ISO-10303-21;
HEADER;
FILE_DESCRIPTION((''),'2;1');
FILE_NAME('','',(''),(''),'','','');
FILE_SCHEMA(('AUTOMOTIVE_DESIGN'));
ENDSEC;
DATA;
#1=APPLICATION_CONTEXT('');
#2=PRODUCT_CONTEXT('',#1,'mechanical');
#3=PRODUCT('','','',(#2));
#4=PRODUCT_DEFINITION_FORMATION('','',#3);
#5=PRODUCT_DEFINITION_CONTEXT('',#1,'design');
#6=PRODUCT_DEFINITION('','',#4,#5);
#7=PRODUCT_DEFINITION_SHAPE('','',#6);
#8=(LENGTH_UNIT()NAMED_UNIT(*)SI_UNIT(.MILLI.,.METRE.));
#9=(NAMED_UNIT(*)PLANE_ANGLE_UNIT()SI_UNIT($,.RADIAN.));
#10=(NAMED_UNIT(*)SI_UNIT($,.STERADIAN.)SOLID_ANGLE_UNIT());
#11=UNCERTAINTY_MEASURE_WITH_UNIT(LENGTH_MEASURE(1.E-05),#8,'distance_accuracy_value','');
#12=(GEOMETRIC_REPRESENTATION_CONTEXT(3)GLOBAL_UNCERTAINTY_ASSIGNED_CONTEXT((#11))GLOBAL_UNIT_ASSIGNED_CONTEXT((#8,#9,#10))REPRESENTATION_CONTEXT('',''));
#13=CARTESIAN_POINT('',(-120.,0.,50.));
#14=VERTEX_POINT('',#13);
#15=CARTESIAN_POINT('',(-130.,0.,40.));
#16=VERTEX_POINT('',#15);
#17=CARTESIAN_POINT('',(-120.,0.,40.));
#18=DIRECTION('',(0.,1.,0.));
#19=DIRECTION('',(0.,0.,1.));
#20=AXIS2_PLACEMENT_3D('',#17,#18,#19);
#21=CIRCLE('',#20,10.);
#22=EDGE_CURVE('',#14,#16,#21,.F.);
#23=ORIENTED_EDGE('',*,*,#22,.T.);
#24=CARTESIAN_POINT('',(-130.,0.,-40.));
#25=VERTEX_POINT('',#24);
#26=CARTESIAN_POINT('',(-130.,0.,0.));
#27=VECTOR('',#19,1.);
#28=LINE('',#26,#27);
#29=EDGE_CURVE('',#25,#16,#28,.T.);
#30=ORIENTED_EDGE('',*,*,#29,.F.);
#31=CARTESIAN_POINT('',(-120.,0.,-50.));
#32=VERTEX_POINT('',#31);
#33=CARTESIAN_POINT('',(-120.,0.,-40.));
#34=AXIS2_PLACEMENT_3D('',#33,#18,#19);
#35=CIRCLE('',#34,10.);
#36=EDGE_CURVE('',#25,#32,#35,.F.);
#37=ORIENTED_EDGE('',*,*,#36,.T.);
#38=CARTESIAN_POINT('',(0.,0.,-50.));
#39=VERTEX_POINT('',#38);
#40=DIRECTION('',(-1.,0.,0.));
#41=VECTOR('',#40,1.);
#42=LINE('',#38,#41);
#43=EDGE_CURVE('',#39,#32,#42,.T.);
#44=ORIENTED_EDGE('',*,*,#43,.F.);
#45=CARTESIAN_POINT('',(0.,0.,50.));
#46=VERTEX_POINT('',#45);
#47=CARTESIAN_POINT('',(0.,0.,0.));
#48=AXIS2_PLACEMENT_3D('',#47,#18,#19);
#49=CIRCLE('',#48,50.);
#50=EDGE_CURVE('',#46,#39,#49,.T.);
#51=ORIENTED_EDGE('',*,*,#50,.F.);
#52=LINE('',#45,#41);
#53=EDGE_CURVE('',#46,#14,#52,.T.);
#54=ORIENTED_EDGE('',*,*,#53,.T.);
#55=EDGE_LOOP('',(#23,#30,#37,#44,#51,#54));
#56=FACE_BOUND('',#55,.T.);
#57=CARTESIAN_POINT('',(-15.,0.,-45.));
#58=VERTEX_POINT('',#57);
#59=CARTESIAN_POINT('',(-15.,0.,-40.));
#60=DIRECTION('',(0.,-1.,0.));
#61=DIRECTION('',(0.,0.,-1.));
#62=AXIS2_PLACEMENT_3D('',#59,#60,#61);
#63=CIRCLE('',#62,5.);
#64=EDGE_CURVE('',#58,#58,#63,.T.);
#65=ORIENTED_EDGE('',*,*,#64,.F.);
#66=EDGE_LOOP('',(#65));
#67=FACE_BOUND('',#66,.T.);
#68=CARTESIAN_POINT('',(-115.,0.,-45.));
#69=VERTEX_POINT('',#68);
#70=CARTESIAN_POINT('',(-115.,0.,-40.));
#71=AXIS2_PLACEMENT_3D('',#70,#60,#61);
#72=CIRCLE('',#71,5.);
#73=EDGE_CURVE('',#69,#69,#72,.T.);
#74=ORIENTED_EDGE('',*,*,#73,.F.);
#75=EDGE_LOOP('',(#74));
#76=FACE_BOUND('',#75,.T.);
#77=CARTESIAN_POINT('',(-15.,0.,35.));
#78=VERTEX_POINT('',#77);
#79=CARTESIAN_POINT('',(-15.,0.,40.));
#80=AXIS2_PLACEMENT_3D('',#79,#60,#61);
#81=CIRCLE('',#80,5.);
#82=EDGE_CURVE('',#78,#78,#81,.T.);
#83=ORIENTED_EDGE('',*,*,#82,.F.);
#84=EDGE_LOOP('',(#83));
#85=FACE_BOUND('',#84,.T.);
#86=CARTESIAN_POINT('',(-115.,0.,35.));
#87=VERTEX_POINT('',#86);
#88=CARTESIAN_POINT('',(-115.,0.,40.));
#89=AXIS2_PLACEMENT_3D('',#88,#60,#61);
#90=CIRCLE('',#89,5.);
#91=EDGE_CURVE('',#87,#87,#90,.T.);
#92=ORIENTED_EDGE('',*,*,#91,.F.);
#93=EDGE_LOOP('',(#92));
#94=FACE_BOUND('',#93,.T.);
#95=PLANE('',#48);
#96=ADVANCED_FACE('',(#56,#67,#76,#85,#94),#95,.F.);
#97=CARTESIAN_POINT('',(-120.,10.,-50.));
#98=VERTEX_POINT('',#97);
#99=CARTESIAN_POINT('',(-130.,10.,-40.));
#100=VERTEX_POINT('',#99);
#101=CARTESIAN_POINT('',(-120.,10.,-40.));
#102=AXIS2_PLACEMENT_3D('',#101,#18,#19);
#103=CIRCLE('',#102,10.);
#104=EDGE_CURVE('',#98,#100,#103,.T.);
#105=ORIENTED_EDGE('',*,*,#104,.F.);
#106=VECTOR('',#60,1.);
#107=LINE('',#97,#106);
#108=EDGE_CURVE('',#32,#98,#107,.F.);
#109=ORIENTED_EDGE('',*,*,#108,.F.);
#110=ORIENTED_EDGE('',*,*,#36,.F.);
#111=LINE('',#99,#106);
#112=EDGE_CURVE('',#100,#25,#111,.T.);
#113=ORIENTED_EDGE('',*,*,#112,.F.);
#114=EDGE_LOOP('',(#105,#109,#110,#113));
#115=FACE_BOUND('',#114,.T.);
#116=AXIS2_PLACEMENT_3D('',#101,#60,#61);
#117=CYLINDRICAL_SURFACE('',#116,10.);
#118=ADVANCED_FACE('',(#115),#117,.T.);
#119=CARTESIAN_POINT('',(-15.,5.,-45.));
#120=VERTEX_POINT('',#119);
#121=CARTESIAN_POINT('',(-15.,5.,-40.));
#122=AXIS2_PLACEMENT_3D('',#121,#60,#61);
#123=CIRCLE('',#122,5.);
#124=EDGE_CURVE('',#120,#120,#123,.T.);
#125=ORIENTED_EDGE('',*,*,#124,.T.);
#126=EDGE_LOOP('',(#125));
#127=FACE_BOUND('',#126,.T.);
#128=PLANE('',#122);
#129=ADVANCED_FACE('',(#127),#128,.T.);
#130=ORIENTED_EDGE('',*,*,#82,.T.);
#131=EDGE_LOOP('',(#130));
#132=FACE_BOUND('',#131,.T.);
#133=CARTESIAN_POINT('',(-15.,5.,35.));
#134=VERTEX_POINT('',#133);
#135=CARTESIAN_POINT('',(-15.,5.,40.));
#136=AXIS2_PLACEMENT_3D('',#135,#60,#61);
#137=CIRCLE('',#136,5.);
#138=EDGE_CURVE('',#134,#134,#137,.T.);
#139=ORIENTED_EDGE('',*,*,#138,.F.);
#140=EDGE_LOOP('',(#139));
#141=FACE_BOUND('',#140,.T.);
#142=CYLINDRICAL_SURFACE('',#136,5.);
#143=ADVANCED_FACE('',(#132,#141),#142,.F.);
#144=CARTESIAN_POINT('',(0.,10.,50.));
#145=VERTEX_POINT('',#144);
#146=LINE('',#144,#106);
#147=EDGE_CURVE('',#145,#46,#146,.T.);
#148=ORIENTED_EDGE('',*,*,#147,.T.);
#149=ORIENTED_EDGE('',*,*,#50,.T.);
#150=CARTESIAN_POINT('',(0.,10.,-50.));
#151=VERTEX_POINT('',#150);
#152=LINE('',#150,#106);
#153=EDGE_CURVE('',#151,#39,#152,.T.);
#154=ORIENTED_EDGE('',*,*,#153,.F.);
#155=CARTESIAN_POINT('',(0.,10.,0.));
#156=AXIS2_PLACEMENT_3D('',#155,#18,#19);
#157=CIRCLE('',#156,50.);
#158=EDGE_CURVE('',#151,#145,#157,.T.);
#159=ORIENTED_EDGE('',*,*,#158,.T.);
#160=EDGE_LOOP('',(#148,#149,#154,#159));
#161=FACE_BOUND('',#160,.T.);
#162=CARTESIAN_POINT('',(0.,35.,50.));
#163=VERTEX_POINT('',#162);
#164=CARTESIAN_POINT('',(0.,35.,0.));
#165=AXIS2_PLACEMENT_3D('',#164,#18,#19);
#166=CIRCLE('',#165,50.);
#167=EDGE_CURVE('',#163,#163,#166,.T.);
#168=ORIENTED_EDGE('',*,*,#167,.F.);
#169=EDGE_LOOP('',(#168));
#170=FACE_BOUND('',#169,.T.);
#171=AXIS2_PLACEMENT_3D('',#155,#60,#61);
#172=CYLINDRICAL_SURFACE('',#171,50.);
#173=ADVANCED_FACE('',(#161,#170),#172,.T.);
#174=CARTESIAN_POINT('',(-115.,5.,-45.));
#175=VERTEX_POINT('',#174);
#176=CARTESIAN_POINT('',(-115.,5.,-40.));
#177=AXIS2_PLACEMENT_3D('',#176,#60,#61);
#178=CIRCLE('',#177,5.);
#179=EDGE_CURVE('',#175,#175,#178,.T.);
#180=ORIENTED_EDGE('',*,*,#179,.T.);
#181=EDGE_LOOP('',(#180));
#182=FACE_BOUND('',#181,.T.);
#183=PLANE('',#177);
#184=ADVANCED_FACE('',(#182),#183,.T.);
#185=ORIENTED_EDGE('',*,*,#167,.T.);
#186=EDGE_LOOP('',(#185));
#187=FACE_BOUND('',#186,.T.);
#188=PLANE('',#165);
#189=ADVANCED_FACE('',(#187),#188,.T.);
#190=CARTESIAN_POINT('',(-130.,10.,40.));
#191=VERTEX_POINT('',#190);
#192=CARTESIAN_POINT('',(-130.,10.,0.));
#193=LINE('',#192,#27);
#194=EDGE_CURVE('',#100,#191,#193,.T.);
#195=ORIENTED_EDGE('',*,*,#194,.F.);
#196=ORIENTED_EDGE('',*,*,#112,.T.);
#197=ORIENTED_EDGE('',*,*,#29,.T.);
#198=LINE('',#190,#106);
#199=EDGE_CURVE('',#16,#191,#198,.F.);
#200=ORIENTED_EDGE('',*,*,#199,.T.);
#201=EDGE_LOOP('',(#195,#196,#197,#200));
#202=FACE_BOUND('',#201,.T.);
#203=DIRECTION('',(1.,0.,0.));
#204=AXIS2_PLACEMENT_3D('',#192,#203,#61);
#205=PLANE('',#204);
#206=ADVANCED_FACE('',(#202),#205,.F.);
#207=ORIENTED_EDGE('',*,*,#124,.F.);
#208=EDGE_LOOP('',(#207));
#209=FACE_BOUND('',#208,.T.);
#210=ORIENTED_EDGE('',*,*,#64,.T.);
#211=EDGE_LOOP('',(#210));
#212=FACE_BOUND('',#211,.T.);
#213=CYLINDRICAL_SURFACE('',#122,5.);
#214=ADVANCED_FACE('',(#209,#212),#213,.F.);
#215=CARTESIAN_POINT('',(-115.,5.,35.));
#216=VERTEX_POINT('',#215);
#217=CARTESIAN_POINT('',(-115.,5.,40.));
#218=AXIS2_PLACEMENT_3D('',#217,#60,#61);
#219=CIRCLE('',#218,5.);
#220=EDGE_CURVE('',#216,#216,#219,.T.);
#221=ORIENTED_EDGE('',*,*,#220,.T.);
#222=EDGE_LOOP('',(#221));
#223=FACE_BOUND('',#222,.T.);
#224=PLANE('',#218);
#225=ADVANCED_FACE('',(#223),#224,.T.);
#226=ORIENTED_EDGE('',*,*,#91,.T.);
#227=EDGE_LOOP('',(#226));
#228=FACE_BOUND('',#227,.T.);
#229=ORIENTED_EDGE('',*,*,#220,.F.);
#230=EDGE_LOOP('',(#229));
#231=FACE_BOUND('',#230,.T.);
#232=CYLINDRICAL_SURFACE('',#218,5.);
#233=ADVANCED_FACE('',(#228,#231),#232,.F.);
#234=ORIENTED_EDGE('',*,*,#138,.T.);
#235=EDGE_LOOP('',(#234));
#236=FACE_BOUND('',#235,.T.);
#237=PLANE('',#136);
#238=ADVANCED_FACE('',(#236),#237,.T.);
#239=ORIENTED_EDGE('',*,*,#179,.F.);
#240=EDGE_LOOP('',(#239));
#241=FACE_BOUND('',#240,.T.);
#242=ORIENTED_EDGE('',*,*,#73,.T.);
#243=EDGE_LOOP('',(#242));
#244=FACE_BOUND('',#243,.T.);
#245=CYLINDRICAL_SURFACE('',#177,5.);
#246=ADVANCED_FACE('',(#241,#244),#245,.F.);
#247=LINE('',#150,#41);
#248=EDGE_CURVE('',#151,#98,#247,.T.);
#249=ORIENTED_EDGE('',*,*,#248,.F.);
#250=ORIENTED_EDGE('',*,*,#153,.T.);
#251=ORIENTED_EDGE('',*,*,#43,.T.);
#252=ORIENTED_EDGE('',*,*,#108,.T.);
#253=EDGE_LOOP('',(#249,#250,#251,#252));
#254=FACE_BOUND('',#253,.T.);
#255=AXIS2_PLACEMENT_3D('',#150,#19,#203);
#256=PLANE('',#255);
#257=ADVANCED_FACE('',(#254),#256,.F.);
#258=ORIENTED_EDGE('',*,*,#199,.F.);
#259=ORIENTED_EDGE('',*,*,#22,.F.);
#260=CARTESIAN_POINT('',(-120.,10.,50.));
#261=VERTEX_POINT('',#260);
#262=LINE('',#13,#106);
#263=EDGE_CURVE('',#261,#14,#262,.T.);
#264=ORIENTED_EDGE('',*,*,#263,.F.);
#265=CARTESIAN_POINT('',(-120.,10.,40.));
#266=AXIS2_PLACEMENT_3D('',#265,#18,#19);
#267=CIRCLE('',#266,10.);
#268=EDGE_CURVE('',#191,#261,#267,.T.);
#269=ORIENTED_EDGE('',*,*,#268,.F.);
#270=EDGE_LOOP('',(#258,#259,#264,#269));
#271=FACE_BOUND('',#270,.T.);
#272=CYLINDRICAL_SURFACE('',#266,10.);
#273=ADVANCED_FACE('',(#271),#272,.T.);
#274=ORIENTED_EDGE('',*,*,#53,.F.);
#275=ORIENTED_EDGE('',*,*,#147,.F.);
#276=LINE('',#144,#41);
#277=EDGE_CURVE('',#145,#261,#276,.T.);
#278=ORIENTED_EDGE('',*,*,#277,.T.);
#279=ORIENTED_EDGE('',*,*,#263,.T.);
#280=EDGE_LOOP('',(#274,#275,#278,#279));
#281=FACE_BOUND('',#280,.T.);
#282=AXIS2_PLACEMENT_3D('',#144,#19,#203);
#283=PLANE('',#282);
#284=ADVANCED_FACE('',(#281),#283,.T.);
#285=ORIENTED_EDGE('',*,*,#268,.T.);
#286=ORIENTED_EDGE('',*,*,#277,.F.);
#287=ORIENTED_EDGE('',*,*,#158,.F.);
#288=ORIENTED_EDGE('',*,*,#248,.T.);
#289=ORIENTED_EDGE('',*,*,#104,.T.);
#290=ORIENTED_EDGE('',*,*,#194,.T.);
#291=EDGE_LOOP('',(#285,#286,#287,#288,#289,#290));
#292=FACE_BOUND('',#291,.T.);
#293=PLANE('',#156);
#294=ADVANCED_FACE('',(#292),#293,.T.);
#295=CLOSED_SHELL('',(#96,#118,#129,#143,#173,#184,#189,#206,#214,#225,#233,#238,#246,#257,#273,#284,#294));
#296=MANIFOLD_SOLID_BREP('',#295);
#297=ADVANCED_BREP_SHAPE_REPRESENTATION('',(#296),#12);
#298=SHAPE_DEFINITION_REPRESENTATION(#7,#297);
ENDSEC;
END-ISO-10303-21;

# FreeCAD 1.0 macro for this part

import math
import FreeCAD as App
import Part
import Sketcher

V = App.Vector
Q = App.Units.Quantity


def edges_at(feature, points):
    """Names of the edges that pass closest to the given points."""
    edges = feature.Shape.Edges
    near = lambda p: min(range(len(edges)), key=lambda i: edges[i].distToShape(Part.Vertex(*p))[0])
    return sorted({f"Edge{near(p) + 1}" for p in points})

doc = App.newDocument("Part")
body = doc.addObject("PartDesign::Body", "Body")

sketch1 = body.newObject("Sketcher::SketchObject", "Sketch")
sketch1.AttachmentSupport = (doc.getObject("XZ_Plane"), [""])
sketch1.MapMode = "FlatFace"
sketch1.addGeometry(Part.ArcOfCircle(Part.Circle(V(0, 0, 0), V(0, 0, 1), 50), math.radians(-90), math.radians(0)), False)
sketch1.addGeometry(Part.LineSegment(V(0, -50, 0), V(-130, -50, 0)), False)
sketch1.addGeometry(Part.LineSegment(V(-130, -50, 0), V(-130, 50, 0)), False)
sketch1.addGeometry(Part.LineSegment(V(-130, 50, 0), V(0, 50, 0)), False)
sketch1.addGeometry(Part.ArcOfCircle(Part.Circle(V(0, 0, 0), V(0, 0, 1), 50), math.radians(0), math.radians(90)), False)
sketch1.addConstraint(Sketcher.Constraint("Tangent", 0, 1, 1, 1))
sketch1.addConstraint(Sketcher.Constraint("Coincident", 1, 2, 2, 1))
sketch1.addConstraint(Sketcher.Constraint("Coincident", 2, 2, 3, 1))
sketch1.addConstraint(Sketcher.Constraint("Tangent", 3, 2, 4, 2))
sketch1.addConstraint(Sketcher.Constraint("Tangent", 4, 1, 0, 2))
sketch1.addConstraint(Sketcher.Constraint("Horizontal", 1))
sketch1.addConstraint(Sketcher.Constraint("Vertical", 2))
sketch1.addConstraint(Sketcher.Constraint("Horizontal", 3))
sketch1.addConstraint(Sketcher.Constraint("Coincident", 0, 3, -1, 1))
sketch1.addConstraint(Sketcher.Constraint("Equal", 0, 4))
sketch1.addConstraint(Sketcher.Constraint("PointOnObject", 4, 1, -1))
sketch1.addConstraint(Sketcher.Constraint("Radius", 0, Q("50 mm")))
sketch1.addConstraint(Sketcher.Constraint("DistanceX", 1, 2, 1, 1, Q("130 mm")))
pad1 = body.newObject("PartDesign::Pad", "Pad")
pad1.Profile = sketch1
pad1.Length = 10
pad1.Reversed = True

sketch2 = body.newObject("Sketcher::SketchObject", "Sketch001")
sketch2.AttachmentSupport = (doc.getObject("XZ_Plane"), [""])
sketch2.MapMode = "FlatFace"
sketch2.AttachmentOffset = App.Placement(V(0, 0, -10), App.Rotation())
sketch2.addGeometry(Part.Circle(V(0, 0, 0), V(0, 0, 1), 50), False)
sketch2.addConstraint(Sketcher.Constraint("Coincident", 0, 3, -1, 1))
sketch2.addConstraint(Sketcher.Constraint("Diameter", 0, Q("100 mm")))
pad2 = body.newObject("PartDesign::Pad", "Pad001")
pad2.Profile = sketch2
pad2.Length = 25
pad2.Reversed = True

sketch3 = body.newObject("Sketcher::SketchObject", "Sketch002")
sketch3.AttachmentSupport = (doc.getObject("XZ_Plane"), [""])
sketch3.MapMode = "FlatFace"
sketch3.addGeometry(Part.Circle(V(-15, 40, 0), V(0, 0, 1), 5), False)
sketch3.addGeometry(Part.Circle(V(-15, -40, 0), V(0, 0, 1), 5), False)
sketch3.addGeometry(Part.Circle(V(-115, -40, 0), V(0, 0, 1), 5), False)
sketch3.addGeometry(Part.Circle(V(-115, 40, 0), V(0, 0, 1), 5), False)
sketch3.addConstraint(Sketcher.Constraint("Equal", 0, 1))
sketch3.addConstraint(Sketcher.Constraint("Equal", 1, 2))
sketch3.addConstraint(Sketcher.Constraint("Equal", 2, 3))
sketch3.addConstraint(Sketcher.Constraint("Symmetric", 0, 3, 1, 3, -1))
sketch3.addConstraint(Sketcher.Constraint("Symmetric", 2, 3, 3, 3, -1))
sketch3.addConstraint(Sketcher.Constraint("Horizontal", 1, 3, 2, 3))
sketch3.addConstraint(Sketcher.Constraint("Diameter", 0, Q("10 mm")))
sketch3.addConstraint(Sketcher.Constraint("DistanceX", 0, 3, -1, 1, Q("15 mm")))
sketch3.addConstraint(Sketcher.Constraint("DistanceY", -1, 1, 0, 3, Q("40 mm")))
sketch3.addConstraint(Sketcher.Constraint("DistanceX", 2, 3, -1, 1, Q("115 mm")))
pocket1 = body.newObject("PartDesign::Pocket", "Pocket")
pocket1.Profile = sketch3
pocket1.Length = 5
doc.recompute()

fillet = body.newObject("PartDesign::Fillet", "Fillet")
fillet.Base = (pocket1, edges_at(pocket1, [(-130, 5, 50), (-130, 5, -50)]))
fillet.Radius = 10

doc.recompute()
